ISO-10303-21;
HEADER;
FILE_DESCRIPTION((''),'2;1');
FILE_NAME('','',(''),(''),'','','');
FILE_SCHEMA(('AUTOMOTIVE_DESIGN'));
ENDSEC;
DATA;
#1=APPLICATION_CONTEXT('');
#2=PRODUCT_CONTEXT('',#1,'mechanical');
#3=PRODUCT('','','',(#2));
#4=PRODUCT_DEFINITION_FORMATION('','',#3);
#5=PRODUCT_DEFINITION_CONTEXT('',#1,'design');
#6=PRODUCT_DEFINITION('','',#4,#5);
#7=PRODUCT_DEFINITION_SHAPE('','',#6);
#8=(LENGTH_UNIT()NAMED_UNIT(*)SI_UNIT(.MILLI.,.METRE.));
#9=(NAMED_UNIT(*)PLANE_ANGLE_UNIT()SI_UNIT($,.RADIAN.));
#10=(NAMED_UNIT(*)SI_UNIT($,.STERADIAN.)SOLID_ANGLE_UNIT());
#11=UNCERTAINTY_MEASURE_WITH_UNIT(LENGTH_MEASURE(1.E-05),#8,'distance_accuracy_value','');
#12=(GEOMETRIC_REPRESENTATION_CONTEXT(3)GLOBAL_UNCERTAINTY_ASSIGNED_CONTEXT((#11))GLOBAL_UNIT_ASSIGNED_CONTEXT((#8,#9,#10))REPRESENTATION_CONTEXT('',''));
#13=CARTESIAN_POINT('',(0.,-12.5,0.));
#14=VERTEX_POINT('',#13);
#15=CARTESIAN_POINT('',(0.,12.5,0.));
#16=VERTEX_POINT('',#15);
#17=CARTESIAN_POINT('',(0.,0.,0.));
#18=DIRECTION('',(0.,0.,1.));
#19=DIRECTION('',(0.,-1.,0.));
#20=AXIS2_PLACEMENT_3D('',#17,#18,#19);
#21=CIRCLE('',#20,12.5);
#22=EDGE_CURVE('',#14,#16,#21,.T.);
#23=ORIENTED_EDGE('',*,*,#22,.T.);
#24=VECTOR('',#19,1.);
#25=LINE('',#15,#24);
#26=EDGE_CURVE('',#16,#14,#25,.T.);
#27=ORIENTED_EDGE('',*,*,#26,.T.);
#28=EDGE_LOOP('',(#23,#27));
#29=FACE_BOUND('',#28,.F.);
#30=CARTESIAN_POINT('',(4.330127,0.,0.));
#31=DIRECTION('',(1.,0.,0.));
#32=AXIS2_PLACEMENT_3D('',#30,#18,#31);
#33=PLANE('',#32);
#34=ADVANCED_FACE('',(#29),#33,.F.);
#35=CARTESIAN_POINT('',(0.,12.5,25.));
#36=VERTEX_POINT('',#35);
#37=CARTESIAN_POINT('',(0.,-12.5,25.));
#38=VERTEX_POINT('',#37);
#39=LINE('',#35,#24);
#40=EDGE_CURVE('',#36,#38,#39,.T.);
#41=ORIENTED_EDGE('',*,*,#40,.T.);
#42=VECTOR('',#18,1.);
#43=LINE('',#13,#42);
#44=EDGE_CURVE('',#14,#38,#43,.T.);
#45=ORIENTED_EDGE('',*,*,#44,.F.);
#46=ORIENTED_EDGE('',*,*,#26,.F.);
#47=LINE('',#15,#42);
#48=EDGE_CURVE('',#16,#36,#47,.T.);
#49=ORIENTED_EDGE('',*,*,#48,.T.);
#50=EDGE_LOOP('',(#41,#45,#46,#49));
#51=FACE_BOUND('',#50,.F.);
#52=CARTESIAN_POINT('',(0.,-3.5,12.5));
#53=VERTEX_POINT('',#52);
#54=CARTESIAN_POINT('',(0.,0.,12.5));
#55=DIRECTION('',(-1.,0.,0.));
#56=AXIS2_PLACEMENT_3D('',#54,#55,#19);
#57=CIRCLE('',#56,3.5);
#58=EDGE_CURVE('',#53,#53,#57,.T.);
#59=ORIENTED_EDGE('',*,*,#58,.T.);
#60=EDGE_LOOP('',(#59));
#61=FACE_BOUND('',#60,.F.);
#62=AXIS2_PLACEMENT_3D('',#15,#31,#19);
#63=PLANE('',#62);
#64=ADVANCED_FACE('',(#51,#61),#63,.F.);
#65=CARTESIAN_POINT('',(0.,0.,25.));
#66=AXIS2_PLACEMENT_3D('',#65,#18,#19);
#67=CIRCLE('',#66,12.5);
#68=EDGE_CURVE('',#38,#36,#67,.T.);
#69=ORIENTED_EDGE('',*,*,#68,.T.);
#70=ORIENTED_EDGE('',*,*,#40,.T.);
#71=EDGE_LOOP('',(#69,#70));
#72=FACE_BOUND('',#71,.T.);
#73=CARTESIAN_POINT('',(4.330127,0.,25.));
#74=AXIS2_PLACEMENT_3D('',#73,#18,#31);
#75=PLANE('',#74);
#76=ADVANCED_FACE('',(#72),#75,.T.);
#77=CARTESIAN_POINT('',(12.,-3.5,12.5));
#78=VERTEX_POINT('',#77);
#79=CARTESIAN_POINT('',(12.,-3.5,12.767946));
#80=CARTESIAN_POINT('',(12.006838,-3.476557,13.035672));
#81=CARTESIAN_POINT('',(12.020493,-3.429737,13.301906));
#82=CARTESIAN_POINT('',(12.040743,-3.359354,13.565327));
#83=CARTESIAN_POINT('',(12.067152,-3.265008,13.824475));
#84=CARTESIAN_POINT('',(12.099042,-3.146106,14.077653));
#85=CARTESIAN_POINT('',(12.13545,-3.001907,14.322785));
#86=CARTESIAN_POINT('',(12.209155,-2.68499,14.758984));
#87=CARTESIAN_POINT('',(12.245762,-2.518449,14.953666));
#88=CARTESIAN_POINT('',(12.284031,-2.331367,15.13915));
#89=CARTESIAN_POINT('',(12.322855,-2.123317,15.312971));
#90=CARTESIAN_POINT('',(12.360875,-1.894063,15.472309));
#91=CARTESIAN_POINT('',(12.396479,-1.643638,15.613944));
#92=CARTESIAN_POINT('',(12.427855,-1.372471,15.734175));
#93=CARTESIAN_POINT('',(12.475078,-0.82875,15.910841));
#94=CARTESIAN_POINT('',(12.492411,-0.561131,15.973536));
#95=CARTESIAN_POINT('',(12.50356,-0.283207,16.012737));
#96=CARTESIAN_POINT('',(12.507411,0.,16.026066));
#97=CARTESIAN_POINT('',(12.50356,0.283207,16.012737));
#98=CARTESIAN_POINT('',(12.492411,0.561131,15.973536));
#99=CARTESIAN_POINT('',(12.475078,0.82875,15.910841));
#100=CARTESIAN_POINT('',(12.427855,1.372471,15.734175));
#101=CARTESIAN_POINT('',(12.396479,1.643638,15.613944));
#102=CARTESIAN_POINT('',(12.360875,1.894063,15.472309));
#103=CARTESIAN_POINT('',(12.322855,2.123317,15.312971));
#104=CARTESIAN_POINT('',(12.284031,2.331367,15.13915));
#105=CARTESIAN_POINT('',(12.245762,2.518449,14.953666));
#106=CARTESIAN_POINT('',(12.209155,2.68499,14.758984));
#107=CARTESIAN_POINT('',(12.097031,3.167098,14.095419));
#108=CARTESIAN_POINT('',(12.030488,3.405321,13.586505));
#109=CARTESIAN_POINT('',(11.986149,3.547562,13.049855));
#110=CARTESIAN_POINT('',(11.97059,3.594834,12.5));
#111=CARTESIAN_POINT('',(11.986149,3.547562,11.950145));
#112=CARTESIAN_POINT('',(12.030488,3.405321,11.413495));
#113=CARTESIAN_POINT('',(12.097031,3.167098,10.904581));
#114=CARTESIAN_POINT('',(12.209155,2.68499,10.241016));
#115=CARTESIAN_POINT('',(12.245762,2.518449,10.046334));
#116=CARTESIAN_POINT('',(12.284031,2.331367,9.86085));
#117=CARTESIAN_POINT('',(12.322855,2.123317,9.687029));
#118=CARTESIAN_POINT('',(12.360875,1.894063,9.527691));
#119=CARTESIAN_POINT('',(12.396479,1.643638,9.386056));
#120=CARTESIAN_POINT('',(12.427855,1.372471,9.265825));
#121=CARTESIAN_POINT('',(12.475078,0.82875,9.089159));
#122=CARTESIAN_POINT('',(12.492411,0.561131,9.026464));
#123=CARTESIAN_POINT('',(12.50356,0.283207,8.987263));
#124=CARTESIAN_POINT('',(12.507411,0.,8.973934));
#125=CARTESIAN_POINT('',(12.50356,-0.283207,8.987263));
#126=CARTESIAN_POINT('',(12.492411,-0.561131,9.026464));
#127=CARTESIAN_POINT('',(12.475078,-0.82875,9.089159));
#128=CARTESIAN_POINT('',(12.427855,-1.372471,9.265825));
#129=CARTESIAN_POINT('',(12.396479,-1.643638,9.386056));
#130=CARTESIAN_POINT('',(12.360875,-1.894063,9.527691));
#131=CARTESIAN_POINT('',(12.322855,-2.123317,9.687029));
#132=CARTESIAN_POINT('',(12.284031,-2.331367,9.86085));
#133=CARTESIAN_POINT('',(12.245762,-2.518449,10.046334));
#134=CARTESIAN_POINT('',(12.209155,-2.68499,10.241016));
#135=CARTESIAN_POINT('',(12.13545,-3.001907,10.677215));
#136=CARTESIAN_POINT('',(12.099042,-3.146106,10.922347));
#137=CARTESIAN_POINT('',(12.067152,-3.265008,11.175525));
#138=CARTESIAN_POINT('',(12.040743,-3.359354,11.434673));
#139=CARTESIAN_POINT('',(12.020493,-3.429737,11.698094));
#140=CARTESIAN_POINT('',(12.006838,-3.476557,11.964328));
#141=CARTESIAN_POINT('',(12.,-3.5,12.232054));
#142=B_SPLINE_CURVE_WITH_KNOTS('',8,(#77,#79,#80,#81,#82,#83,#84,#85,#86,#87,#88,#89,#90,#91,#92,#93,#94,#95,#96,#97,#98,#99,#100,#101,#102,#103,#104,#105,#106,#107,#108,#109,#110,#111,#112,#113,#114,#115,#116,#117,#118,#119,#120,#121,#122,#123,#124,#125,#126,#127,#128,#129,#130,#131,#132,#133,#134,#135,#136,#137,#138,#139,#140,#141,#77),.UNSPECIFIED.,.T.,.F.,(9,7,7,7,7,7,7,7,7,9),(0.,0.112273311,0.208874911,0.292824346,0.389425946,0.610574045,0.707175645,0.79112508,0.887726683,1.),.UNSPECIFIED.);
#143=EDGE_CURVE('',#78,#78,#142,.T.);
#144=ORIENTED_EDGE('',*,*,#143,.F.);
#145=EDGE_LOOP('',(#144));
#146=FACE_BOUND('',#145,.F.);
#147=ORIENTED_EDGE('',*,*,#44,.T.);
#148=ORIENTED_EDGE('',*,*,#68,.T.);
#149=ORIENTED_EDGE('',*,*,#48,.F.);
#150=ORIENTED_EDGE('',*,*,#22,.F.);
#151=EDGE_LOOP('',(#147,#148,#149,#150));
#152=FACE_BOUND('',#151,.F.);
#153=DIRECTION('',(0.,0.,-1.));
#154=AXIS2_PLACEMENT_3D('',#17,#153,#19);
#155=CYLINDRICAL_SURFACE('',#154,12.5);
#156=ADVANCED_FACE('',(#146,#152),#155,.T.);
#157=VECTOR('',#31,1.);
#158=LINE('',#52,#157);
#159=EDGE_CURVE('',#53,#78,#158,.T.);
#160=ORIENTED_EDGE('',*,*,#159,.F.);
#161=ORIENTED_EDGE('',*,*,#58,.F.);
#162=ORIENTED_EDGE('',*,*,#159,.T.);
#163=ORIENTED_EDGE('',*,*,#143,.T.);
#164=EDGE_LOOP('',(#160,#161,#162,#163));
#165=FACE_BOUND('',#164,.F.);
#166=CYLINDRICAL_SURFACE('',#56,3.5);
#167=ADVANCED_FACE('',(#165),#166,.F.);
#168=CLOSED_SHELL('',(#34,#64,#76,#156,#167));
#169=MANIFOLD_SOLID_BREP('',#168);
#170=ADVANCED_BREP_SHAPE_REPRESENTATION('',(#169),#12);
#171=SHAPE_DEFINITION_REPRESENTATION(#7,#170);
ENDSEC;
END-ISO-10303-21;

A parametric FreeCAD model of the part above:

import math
import FreeCAD as App
import Part
import Sketcher

V = App.Vector

doc = App.newDocument("Part")
body = doc.addObject("PartDesign::Body", "Body")

# Sketch on XY plane
sketch1 = body.newObject("Sketcher::SketchObject", "Sketch")
sketch1.AttachmentSupport = (doc.getObject("XY_Plane"), [""])
sketch1.MapMode = "FlatFace"
sketch1.addGeometry(Part.LineSegment(V(0, 12, 0), V(0, -12, 0)), False)
sketch1.addGeometry(Part.ArcOfCircle(Part.Circle(V(0, 0, 0), V(0, 0, 1), 12), math.radians(-90), math.radians(90)), False)
sketch1.addConstraint(Sketcher.Constraint("Coincident", 0, 1, 1, 2))
sketch1.addConstraint(Sketcher.Constraint("Coincident", 1, 1, 0, 2))
sketch1.addConstraint(Sketcher.Constraint("Vertical", 0))
sketch1.addConstraint(Sketcher.Constraint("Coincident", 1, 3, -1, 1))
sketch1.addConstraint(Sketcher.Constraint("PointOnObject", 0, 1, -2))
sketch1.addConstraint(Sketcher.Constraint("Radius", 1, 12.5))
pad1 = body.newObject("PartDesign::Pad", "Pad")
pad1.Profile = sketch1
pad1.Length = 25

# Sketch on YZ plane
sketch2 = body.newObject("Sketcher::SketchObject", "Sketch001")
sketch2.AttachmentSupport = (doc.getObject("YZ_Plane"), [""])
sketch2.MapMode = "FlatFace"
sketch2.addGeometry(Part.Circle(V(0, 12.5, 0), V(0, 0, 1), 3.5), False)
sketch2.addConstraint(Sketcher.Constraint("PointOnObject", 0, 3, -2))
sketch2.addConstraint(Sketcher.Constraint("Diameter", 0, 7.0))
sketch2.addConstraint(Sketcher.Constraint("DistanceY", -1, 1, 0, 3, 12.5))
pocket1 = body.newObject("PartDesign::Pocket", "Pocket")
pocket1.Profile = sketch2
pocket1.Length = 25
pocket1.Reversed = True

doc.recompute()
